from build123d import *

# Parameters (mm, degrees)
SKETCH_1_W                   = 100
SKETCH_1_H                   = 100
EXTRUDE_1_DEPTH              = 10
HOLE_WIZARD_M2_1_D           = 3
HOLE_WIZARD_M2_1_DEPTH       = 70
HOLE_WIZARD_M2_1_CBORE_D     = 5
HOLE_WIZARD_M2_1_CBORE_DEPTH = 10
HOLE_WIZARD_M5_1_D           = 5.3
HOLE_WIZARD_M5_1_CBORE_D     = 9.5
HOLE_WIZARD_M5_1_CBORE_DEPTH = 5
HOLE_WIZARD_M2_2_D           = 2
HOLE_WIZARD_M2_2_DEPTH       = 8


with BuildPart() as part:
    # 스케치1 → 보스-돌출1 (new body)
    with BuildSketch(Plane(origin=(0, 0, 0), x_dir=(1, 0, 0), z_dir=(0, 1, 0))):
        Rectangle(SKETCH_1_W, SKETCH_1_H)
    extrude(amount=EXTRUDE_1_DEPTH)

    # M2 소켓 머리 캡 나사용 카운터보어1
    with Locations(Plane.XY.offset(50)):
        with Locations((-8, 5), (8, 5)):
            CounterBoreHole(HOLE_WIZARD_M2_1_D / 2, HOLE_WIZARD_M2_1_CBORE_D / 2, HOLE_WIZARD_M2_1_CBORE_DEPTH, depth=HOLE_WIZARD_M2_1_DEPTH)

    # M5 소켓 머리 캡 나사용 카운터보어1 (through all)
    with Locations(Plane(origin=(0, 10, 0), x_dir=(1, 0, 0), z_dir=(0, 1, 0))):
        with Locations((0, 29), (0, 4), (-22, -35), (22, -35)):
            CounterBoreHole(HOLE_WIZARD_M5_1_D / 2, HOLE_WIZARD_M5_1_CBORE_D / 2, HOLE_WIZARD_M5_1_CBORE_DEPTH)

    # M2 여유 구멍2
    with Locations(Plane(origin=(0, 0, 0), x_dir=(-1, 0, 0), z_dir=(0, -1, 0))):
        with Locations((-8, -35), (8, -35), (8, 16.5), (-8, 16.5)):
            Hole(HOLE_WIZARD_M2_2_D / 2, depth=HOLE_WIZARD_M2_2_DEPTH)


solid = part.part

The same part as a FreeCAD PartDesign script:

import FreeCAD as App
import Part
import Sketcher

doc = App.newDocument("Part")
body = doc.addObject("PartDesign::Body", "Body")

# Sketch on XZ plane
sketch1 = body.newObject("Sketcher::SketchObject", "Sketch")
sketch1.AttachmentSupport = (doc.getObject("XZ_Plane"), [""])
sketch1.MapMode = "FlatFace"
sketch1.addGeometry([
    Part.LineSegment(App.Vector(-50, -50, 0), App.Vector(-50, 50, 0)),
    Part.LineSegment(App.Vector(-50, 50, 0), App.Vector(50, 50, 0)),
    Part.LineSegment(App.Vector(50, 50, 0), App.Vector(50, -50, 0)),
    Part.LineSegment(App.Vector(50, -50, 0), App.Vector(-50, -50, 0)),
], False)
sketch1.addConstraint([
    Sketcher.Constraint("Coincident", 0, 2, 1, 1),
    Sketcher.Constraint("Coincident", 1, 2, 2, 1),
    Sketcher.Constraint("Coincident", 2, 2, 3, 1),
    Sketcher.Constraint("Coincident", 3, 2, 0, 1),
    Sketcher.Constraint("Vertical", 0),
    Sketcher.Constraint("Horizontal", 1),
    Sketcher.Constraint("Vertical", 2),
    Sketcher.Constraint("Horizontal", 3),
    Sketcher.Constraint("Symmetric", 0, 2, 2, 2, -1, 1),
    Sketcher.Constraint("Equal", 3, 0),
    Sketcher.Constraint("DistanceX", 1, 1, 1, 2, 100.0),
])
pad1 = body.newObject("PartDesign::Pad", "Pad")
pad1.Profile = sketch1
pad1.Length = 10
pad1.Reversed = True

# Sketch on XY plane
sketch2 = body.newObject("Sketcher::SketchObject", "Sketch001")
sketch2.AttachmentSupport = (doc.getObject("XY_Plane"), [""])
sketch2.MapMode = "FlatFace"
sketch2.AttachmentOffset = App.Placement(App.Vector(0, 0, 50), App.Rotation())
sketch2.addGeometry([
    Part.Circle(App.Vector(-8, 5, 0), App.Vector(0, 0, 1), 1.5),
    Part.Circle(App.Vector(8, 5, 0), App.Vector(0, 0, 1), 1.5),
], False)
sketch2.addConstraint([
    Sketcher.Constraint("Equal", 0, 1),
    Sketcher.Constraint("Symmetric", 0, 3, 1, 3, -2),
    Sketcher.Constraint("Diameter", 0, 3.0),
    Sketcher.Constraint("DistanceX", 0, 3, -1, 1, 8.0),
    Sketcher.Constraint("DistanceY", -1, 1, 0, 3, 5.0),
])
doc.recompute()
hole = body.newObject("PartDesign::Hole", "Hole")
hole.Profile = sketch2
hole.ThreadType = "None"
hole.Diameter = 3
hole.DepthType = "Dimension"
hole.Depth = 70
hole.DrillPoint = "Flat"
hole.HoleCutType = "Counterbore"
hole.HoleCutDiameter = 5
hole.HoleCutDepth = 10

# Sketch on XZ plane
sketch3 = body.newObject("Sketcher::SketchObject", "Sketch002")
sketch3.AttachmentSupport = (doc.getObject("XZ_Plane"), [""])
sketch3.MapMode = "FlatFace"
sketch3.AttachmentOffset = App.Placement(App.Vector(0, 0, -10), App.Rotation())
sketch3.addGeometry([
    Part.Circle(App.Vector(0, -29, 0), App.Vector(0, 0, 1), 2.65),
    Part.Circle(App.Vector(0, -4, 0), App.Vector(0, 0, 1), 2.65),
    Part.Circle(App.Vector(-22, 35, 0), App.Vector(0, 0, 1), 2.65),
    Part.Circle(App.Vector(22, 35, 0), App.Vector(0, 0, 1), 2.65),
], False)
sketch3.addConstraint([
    Sketcher.Constraint("Equal", 0, 1),
    Sketcher.Constraint("Equal", 1, 2),
    Sketcher.Constraint("Equal", 2, 3),
    Sketcher.Constraint("Symmetric", 2, 3, 3, 3, -2),
    Sketcher.Constraint("PointOnObject", 0, 3, -2),
    Sketcher.Constraint("PointOnObject", 1, 3, -2),
    Sketcher.Constraint("Diameter", 0, 5.3),
    Sketcher.Constraint("DistanceY", 0, 3, -1, 1, 29.0),
    Sketcher.Constraint("DistanceY", 1, 3, -1, 1, 4.0),
    Sketcher.Constraint("DistanceX", 2, 3, -1, 1, 22.0),
    Sketcher.Constraint("DistanceY", -1, 1, 2, 3, 35.0),
])
doc.recompute()
hole2 = body.newObject("PartDesign::Hole", "Hole001")
hole2.Profile = sketch3
hole2.ThreadType = "None"
hole2.Diameter = 5.3
hole2.DepthType = "ThroughAll"
hole2.HoleCutType = "Counterbore"
hole2.HoleCutDiameter = 9.5
hole2.HoleCutDepth = 5
hole2.Reversed = True

# Sketch on XZ plane
sketch4 = body.newObject("Sketcher::SketchObject", "Sketch003")
sketch4.AttachmentSupport = (doc.getObject("XZ_Plane"), [""])
sketch4.MapMode = "FlatFace"
sketch4.addGeometry([
    Part.Circle(App.Vector(8, 35, 0), App.Vector(0, 0, 1), 1),
    Part.Circle(App.Vector(-8, 35, 0), App.Vector(0, 0, 1), 1),
    Part.Circle(App.Vector(-8, -16.5, 0), App.Vector(0, 0, 1), 1),
    Part.Circle(App.Vector(8, -16.5, 0), App.Vector(0, 0, 1), 1),
], False)
sketch4.addConstraint([
    Sketcher.Constraint("Equal", 0, 1),
    Sketcher.Constraint("Equal", 1, 2),
    Sketcher.Constraint("Equal", 2, 3),
    Sketcher.Constraint("Symmetric", 0, 3, 1, 3, -2),
    Sketcher.Constraint("Symmetric", 2, 3, 3, 3, -2),
    Sketcher.Constraint("Vertical", 1, 3, 2, 3),
    Sketcher.Constraint("Diameter", 0, 2.0),
    Sketcher.Constraint("DistanceX", -1, 1, 0, 3, 8.0),
    Sketcher.Constraint("DistanceY", -1, 1, 0, 3, 35.0),
    Sketcher.Constraint("DistanceY", 2, 3, -1, 1, 16.5),
])
doc.recompute()
hole3 = body.newObject("PartDesign::Hole", "Hole002")
hole3.Profile = sketch4
hole3.ThreadType = "None"
hole3.Diameter = 2
hole3.DepthType = "Dimension"
hole3.Depth = 8
hole3.DrillPoint = "Flat"

doc.recompute()
